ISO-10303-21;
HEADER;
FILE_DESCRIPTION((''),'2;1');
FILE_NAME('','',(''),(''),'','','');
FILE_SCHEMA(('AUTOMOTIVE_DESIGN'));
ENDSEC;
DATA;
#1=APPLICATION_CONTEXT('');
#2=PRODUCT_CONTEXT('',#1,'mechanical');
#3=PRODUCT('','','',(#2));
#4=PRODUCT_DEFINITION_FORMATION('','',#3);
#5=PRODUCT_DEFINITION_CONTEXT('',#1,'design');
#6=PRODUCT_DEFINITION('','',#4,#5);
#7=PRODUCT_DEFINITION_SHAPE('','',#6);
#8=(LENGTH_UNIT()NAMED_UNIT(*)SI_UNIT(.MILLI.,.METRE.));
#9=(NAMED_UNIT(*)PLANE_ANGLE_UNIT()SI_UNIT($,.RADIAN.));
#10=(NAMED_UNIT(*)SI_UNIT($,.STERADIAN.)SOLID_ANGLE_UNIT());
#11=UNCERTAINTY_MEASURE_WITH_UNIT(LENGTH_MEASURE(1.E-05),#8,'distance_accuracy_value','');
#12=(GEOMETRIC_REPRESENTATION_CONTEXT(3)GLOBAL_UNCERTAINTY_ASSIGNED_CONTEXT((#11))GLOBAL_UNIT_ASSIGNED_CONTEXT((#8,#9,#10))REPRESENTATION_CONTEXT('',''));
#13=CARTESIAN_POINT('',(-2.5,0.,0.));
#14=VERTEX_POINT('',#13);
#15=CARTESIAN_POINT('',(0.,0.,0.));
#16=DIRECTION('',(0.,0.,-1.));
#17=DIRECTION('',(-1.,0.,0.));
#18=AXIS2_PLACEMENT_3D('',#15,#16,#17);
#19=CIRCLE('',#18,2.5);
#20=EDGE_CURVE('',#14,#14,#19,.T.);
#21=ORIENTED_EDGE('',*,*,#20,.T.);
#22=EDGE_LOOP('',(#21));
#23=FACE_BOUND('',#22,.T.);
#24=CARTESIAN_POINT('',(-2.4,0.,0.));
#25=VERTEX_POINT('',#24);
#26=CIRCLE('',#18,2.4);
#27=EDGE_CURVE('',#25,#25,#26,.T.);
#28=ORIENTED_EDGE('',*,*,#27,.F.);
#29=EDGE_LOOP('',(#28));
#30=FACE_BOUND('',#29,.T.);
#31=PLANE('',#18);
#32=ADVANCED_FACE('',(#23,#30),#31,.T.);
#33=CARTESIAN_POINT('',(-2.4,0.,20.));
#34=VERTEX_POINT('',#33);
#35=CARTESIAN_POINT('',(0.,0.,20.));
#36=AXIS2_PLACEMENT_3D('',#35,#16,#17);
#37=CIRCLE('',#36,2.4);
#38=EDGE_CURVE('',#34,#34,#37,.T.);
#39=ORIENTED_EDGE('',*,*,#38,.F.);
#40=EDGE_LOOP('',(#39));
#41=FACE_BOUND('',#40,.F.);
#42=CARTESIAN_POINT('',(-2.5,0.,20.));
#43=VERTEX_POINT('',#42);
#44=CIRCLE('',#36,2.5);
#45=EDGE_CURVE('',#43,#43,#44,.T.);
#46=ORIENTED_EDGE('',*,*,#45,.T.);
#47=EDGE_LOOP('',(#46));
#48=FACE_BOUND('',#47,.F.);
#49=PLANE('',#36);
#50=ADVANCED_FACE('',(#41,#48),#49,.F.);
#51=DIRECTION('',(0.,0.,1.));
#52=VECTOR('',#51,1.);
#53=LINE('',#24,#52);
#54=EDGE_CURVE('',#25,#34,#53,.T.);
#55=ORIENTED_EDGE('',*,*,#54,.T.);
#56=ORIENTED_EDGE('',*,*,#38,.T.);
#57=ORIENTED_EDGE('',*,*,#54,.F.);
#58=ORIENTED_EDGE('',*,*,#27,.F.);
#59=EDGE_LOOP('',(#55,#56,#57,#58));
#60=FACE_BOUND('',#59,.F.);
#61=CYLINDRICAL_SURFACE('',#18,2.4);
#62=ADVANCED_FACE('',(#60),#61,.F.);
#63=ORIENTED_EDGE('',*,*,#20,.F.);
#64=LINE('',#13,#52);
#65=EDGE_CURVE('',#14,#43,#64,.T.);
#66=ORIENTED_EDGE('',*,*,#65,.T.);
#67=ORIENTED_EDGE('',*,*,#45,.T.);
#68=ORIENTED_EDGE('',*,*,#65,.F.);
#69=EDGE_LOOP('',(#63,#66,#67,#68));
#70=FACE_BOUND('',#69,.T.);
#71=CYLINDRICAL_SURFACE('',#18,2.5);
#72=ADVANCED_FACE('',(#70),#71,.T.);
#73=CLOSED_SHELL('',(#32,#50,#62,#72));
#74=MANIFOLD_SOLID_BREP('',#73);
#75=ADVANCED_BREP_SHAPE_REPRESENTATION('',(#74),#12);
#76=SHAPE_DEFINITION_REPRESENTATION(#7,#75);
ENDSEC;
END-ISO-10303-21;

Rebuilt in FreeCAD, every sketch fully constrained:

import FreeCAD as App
import Part
import Sketcher
from FreeCAD import Vector
Q = App.Units.Quantity

doc = App.newDocument("Part")
body = doc.addObject("PartDesign::Body", "Body")

# Sketch on XY plane
sketch1 = body.newObject("Sketcher::SketchObject", "Sketch")
sketch1.AttachmentSupport = (doc.getObject("XY_Plane"), [""])
sketch1.MapMode = "FlatFace"
sketch1.addGeometry([
    Part.Circle(Vector(0, 0, 0), Vector(0, 0, 1), 2.5),
    Part.Circle(Vector(0, 0, 0), Vector(0, 0, 1), 2.4),
], False)
sketch1.addConstraint([
    Sketcher.Constraint("Coincident", 0, 3, -1, 1),
    Sketcher.Constraint("Coincident", 1, 3, -1, 1),
    Sketcher.Constraint("Diameter", 0, Q("5 mm")),
    Sketcher.Constraint("Diameter", 1, Q("4.8 mm")),
])
pad1 = body.newObject("PartDesign::Pad", "Pad")
pad1.Profile = sketch1
pad1.Length = 20

doc.recompute()
